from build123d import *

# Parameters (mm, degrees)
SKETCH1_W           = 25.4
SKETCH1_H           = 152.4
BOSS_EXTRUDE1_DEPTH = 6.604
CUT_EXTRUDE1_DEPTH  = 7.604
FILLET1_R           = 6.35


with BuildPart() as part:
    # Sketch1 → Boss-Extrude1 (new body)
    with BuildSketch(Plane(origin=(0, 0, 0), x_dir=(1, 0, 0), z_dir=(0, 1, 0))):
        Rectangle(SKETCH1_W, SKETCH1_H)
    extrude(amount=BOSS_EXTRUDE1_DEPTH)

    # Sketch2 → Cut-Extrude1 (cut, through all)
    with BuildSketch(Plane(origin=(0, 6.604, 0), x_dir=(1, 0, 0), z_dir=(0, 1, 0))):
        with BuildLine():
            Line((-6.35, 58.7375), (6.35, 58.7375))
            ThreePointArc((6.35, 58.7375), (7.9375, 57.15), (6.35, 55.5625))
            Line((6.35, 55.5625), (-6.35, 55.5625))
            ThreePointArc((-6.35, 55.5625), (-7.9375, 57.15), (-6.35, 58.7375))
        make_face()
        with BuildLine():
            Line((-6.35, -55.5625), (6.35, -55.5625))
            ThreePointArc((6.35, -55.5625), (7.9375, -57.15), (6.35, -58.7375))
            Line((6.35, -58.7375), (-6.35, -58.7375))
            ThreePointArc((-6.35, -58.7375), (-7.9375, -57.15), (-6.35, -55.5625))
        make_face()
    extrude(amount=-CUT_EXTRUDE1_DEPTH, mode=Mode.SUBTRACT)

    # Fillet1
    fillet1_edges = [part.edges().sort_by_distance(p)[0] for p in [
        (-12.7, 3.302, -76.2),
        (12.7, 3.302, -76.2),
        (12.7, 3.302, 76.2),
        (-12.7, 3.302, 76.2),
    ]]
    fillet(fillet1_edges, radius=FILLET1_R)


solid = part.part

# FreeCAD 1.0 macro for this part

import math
import FreeCAD as App
import Part
import Sketcher
Q = App.Units.Quantity


def edges_at(feature, points):
    """Names of the edges that pass closest to the given points."""
    edges = feature.Shape.Edges
    near = lambda p: min(range(len(edges)), key=lambda i: edges[i].distToShape(Part.Vertex(*p))[0])
    return sorted({f"Edge{near(p) + 1}" for p in points})

doc = App.newDocument("Part")
body = doc.addObject("PartDesign::Body", "Body")

# Sketch on XZ plane
sketch1 = body.newObject("Sketcher::SketchObject", "Sketch")
sketch1.AttachmentSupport = (doc.getObject("XZ_Plane"), [""])
sketch1.MapMode = "FlatFace"
sketch1.addGeometry([
    Part.LineSegment(App.Vector(-13, -76, 0), App.Vector(-13, 76, 0)),
    Part.LineSegment(App.Vector(-13, 76, 0), App.Vector(13, 76, 0)),
    Part.LineSegment(App.Vector(13, 76, 0), App.Vector(13, -76, 0)),
    Part.LineSegment(App.Vector(13, -76, 0), App.Vector(-13, -76, 0)),
], False)
sketch1.addConstraint([
    Sketcher.Constraint("Coincident", 0, 2, 1, 1),
    Sketcher.Constraint("Coincident", 1, 2, 2, 1),
    Sketcher.Constraint("Coincident", 2, 2, 3, 1),
    Sketcher.Constraint("Coincident", 3, 2, 0, 1),
    Sketcher.Constraint("Vertical", 0),
    Sketcher.Constraint("Horizontal", 1),
    Sketcher.Constraint("Vertical", 2),
    Sketcher.Constraint("Horizontal", 3),
    Sketcher.Constraint("Symmetric", 0, 2, 2, 2, -1, 1),
    Sketcher.Constraint("DistanceX", 1, 1, 1, 2, Q("1 in")),
    Sketcher.Constraint("DistanceY", 0, 1, 0, 2, Q("6 in")),
])
pad1 = body.newObject("PartDesign::Pad", "Pad")
pad1.Profile = sketch1
pad1.Length = Q("0.26 in")
pad1.Reversed = True

# Sketch on XZ plane
sketch2 = body.newObject("Sketcher::SketchObject", "Sketch001")
sketch2.AttachmentSupport = (doc.getObject("XZ_Plane"), [""])
sketch2.MapMode = "FlatFace"
sketch2.AttachmentOffset = App.Placement(App.Vector(0, 0, -0.26 * 25.4), App.Rotation())
sketch2.addGeometry([
    Part.LineSegment(App.Vector(6.3, -58.7, 0), App.Vector(-6.3, -58.7, 0)),  # 0
    Part.ArcOfCircle(Part.Circle(App.Vector(-6.3, -57.1, 0), App.Vector(0, 0, 1), 1.6), math.radians(90), math.radians(270)),  # 1
    Part.LineSegment(App.Vector(-6.3, -55.6, 0), App.Vector(6.3, -55.6, 0)),  # 2
    Part.ArcOfCircle(Part.Circle(App.Vector(6.3, -57.1, 0), App.Vector(0, 0, 1), 1.6), math.radians(-90), math.radians(90)),  # 3
    Part.LineSegment(App.Vector(6.3, 55.6, 0), App.Vector(-6.3, 55.6, 0)),  # 4
    Part.ArcOfCircle(Part.Circle(App.Vector(-6.3, 57.1, 0), App.Vector(0, 0, 1), 1.6), math.radians(90), math.radians(270)),  # 5
    Part.LineSegment(App.Vector(-6.3, 58.7, 0), App.Vector(6.3, 58.7, 0)),  # 6
    Part.ArcOfCircle(Part.Circle(App.Vector(6.3, 57.1, 0), App.Vector(0, 0, 1), 1.6), math.radians(-90), math.radians(90)),  # 7
], False)
sketch2.addConstraint([
    Sketcher.Constraint("Tangent", 0, 2, 1, 2),
    Sketcher.Constraint("Tangent", 1, 1, 2, 1),
    Sketcher.Constraint("Tangent", 2, 2, 3, 2),
    Sketcher.Constraint("Tangent", 3, 1, 0, 1),
    Sketcher.Constraint("Tangent", 4, 2, 5, 2),
    Sketcher.Constraint("Tangent", 5, 1, 6, 1),
    Sketcher.Constraint("Tangent", 6, 2, 7, 2),
    Sketcher.Constraint("Tangent", 7, 1, 4, 1),
    Sketcher.Constraint("Horizontal", 0),
    Sketcher.Constraint("Horizontal", 2),
    Sketcher.Constraint("Horizontal", 4),
    Sketcher.Constraint("Horizontal", 6),
    Sketcher.Constraint("Equal", 3, 5),
    Sketcher.Constraint("Symmetric", 3, 3, 5, 3, -1, 1),
    Sketcher.Constraint("Vertical", 1, 3, 5, 3),
    Sketcher.Constraint("Vertical", 3, 3, 7, 3),
    Sketcher.Constraint("DistanceX", 0, 2, 0, 1, Q("0.5 in")),
    Sketcher.Constraint("Radius", 1, Q("0.0625 in")),
    Sketcher.Constraint("DistanceY", 1, 3, 5, 3, Q("4.5 in")),
])
pocket1 = body.newObject("PartDesign::Pocket", "Pocket")
pocket1.Profile = sketch2
pocket1.Type = "ThroughAll"
pocket1.Reversed = True
doc.recompute()

fillet = body.newObject("PartDesign::Fillet", "Fillet")
fillet.Base = (pocket1, edges_at(pocket1, [
    (-12.7, 3.302, -76.2),
    (12.7, 3.302, -76.2),
    (12.7, 3.302, 76.2),
    (-12.7, 3.302, 76.2),
]))
fillet.Radius = Q("0.25 in")

doc.recompute()
